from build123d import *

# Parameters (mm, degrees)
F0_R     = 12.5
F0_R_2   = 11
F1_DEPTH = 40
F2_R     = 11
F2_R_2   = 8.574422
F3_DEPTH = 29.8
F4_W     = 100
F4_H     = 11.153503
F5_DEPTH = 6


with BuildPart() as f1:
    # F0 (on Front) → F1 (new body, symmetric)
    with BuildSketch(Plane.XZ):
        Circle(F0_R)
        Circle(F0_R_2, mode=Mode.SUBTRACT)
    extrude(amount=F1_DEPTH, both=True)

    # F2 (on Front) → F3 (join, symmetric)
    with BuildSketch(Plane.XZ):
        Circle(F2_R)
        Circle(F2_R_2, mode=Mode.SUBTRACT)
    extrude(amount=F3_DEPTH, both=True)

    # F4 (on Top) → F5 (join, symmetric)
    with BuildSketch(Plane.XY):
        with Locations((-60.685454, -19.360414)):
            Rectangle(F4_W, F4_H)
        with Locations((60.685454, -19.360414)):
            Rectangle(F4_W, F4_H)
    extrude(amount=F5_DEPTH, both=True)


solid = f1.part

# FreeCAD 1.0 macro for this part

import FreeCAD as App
import Part
import Sketcher
from FreeCAD import Vector
Q = App.Units.Quantity


def add_polygon(sketch, points):
    """Adds a closed chain of lines whose ends are joined by coincident constraints."""
    first, n = sketch.GeometryCount, len(points)
    for a, b in zip(points, points[1:] + points[:1]):
        sketch.addGeometry(Part.LineSegment(App.Vector(*a, 0), App.Vector(*b, 0)), False)
    for i in range(n):
        sketch.addConstraint(Sketcher.Constraint("Coincident", first + i, 2, first + (i + 1) % n, 1))

doc = App.newDocument("Part")
body = doc.addObject("PartDesign::Body", "Body")

sketch1 = body.newObject("Sketcher::SketchObject", "Sketch")
sketch1.AttachmentSupport = (doc.getObject("XZ_Plane"), [""])
sketch1.MapMode = "FlatFace"
sketch1.addGeometry(Part.Circle(Vector(0, 0, 0), Vector(0, 0, 1), 12.5), False)
sketch1.addGeometry(Part.Circle(Vector(0, 0, 0), Vector(0, 0, 1), 11), False)
sketch1.addConstraint(Sketcher.Constraint("Coincident", 0, 3, -1, 1))
sketch1.addConstraint(Sketcher.Constraint("Coincident", 1, 3, -1, 1))
sketch1.addConstraint(Sketcher.Constraint("Diameter", 0, Q("25 mm")))
sketch1.addConstraint(Sketcher.Constraint("Diameter", 1, Q("22 mm")))
pad1 = body.newObject("PartDesign::Pad", "Pad")
pad1.Profile = sketch1
pad1.Length = 80
pad1.Midplane = True

sketch2 = body.newObject("Sketcher::SketchObject", "Sketch001")
sketch2.AttachmentSupport = (doc.getObject("XZ_Plane"), [""])
sketch2.MapMode = "FlatFace"
sketch2.addGeometry(Part.Circle(Vector(0, 0, 0), Vector(0, 0, 1), 11), False)
sketch2.addGeometry(Part.Circle(Vector(0, 0, 0), Vector(0, 0, 1), 8.574422), False)
sketch2.addConstraint(Sketcher.Constraint("Coincident", 0, 3, -1, 1))
sketch2.addConstraint(Sketcher.Constraint("Coincident", 1, 3, -1, 1))
sketch2.addConstraint(Sketcher.Constraint("Diameter", 0, Q("22 mm")))
sketch2.addConstraint(Sketcher.Constraint("Diameter", 1, Q("17.148844 mm")))
pad2 = body.newObject("PartDesign::Pad", "Pad001")
pad2.Profile = sketch2
pad2.Length = 59.6
pad2.Midplane = True

sketch3 = body.newObject("Sketcher::SketchObject", "Sketch002")
sketch3.AttachmentSupport = (doc.getObject("XY_Plane"), [""])
sketch3.MapMode = "FlatFace"
add_polygon(sketch3, [(-110.685454, -13.783663), (-110.685454, -24.937165), (-10.685454, -24.937165), (-10.685454, -13.783663)])
add_polygon(sketch3, [(10.685454, -13.783663), (10.685454, -24.937165), (110.685454, -24.937165), (110.685454, -13.783663)])
sketch3.addConstraint(Sketcher.Constraint("Vertical", 0))
sketch3.addConstraint(Sketcher.Constraint("Horizontal", 1))
sketch3.addConstraint(Sketcher.Constraint("Vertical", 2))
sketch3.addConstraint(Sketcher.Constraint("Horizontal", 3))
sketch3.addConstraint(Sketcher.Constraint("Vertical", 4))
sketch3.addConstraint(Sketcher.Constraint("Horizontal", 5))
sketch3.addConstraint(Sketcher.Constraint("Vertical", 6))
sketch3.addConstraint(Sketcher.Constraint("Horizontal", 7))
sketch3.addConstraint(Sketcher.Constraint("Symmetric", 1, 2, 4, 2, -2))
sketch3.addConstraint(Sketcher.Constraint("Symmetric", 3, 2, 6, 2, -2))
sketch3.addConstraint(Sketcher.Constraint("DistanceX", 1, 1, 1, 2, Q("100 mm")))
sketch3.addConstraint(Sketcher.Constraint("DistanceY", 0, 2, 0, 1, Q("11.153503 mm")))
sketch3.addConstraint(Sketcher.Constraint("DistanceX", 1, 2, 4, 2, Q("21.370908 mm")))
sketch3.addConstraint(Sketcher.Constraint("DistanceY", 0, 2, -1, 1, Q("24.937165 mm")))
pad3 = body.newObject("PartDesign::Pad", "Pad002")
pad3.Profile = sketch3
pad3.Length = 12
pad3.Midplane = True

doc.recompute()
